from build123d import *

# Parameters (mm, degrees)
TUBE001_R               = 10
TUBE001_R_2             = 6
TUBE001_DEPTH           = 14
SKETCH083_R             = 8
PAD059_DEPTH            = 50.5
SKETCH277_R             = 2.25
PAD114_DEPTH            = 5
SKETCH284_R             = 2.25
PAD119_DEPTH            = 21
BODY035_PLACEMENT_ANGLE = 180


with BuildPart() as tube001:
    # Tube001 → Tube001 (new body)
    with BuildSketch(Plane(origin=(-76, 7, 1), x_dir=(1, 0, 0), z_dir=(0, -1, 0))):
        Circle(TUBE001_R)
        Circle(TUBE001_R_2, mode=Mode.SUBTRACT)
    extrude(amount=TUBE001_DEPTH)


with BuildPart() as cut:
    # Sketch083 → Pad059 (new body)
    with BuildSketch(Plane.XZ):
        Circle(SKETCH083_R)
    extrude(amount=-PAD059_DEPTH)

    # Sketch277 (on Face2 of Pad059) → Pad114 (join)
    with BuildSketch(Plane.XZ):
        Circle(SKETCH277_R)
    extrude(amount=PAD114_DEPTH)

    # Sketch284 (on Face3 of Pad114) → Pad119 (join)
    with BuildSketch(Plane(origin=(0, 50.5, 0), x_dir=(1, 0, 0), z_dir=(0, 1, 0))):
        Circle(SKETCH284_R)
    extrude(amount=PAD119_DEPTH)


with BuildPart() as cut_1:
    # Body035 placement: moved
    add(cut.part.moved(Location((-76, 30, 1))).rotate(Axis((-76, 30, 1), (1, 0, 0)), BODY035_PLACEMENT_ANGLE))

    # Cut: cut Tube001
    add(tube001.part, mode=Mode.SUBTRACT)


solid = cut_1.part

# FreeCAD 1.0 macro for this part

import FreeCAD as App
import Part
import Sketcher
Q = App.Units.Quantity

doc = App.newDocument("Part")
body = doc.addObject("PartDesign::Body", "Body")

sketch1 = doc.addObject("Sketcher::SketchObject", "Sketch")
body.addObject(sketch1)
sketch1.AttachmentSupport = (doc.XZ_Plane, [""])
sketch1.MapMode = "FlatFace"
sketch1.AttachmentOffset = App.Placement(App.Vector(0, 0, -7), App.Rotation())
sketch1.addGeometry(Part.Circle(App.Vector(-76, 1, 0), App.Vector(0, 0, 1), 10), False)
sketch1.addGeometry(Part.Circle(App.Vector(-76, 1, 0), App.Vector(0, 0, 1), 6), False)
sketch1.addConstraint(Sketcher.Constraint("Coincident", 1, 3, 0, 3))
sketch1.addConstraint(Sketcher.Constraint("Diameter", 0, Q("20 mm")))
sketch1.addConstraint(Sketcher.Constraint("Diameter", 1, Q("12 mm")))
sketch1.addConstraint(Sketcher.Constraint("DistanceX", 0, 3, -1, 1, Q("76 mm")))
sketch1.addConstraint(Sketcher.Constraint("DistanceY", -1, 1, 0, 3, Q("1 mm")))
pad1 = doc.addObject("PartDesign::Pad", "Pad")
body.addObject(pad1)
pad1.Profile = sketch1
pad1.Length = 14
body2 = doc.addObject("PartDesign::Body", "Body001")

sketch2 = doc.addObject("Sketcher::SketchObject", "Sketch001")
body2.addObject(sketch2)
sketch2.AttachmentSupport = (doc.getObject("XZ_Plane001"), [""])
sketch2.MapMode = "FlatFace"
sketch2.addGeometry(Part.Circle(App.Vector(0, 0, 0), App.Vector(0, 0, 1), 8), False)
sketch2.addConstraint(Sketcher.Constraint("Coincident", 0, 3, -1, 1))
sketch2.addConstraint(Sketcher.Constraint("Diameter", 0, Q("16 mm")))
pad2 = doc.addObject("PartDesign::Pad", "Pad001")
body2.addObject(pad2)
pad2.Profile = sketch2
pad2.Length = 50.5
pad2.Reversed = True

sketch3 = doc.addObject("Sketcher::SketchObject", "Sketch002")
body2.addObject(sketch3)
sketch3.AttachmentSupport = (doc.getObject("XZ_Plane001"), [""])
sketch3.MapMode = "FlatFace"
sketch3.addGeometry(Part.Circle(App.Vector(0, 0, 0), App.Vector(0, 0, 1), 2.2), False)
sketch3.addConstraint(Sketcher.Constraint("Coincident", 0, 3, -1, 1))
sketch3.addConstraint(Sketcher.Constraint("Diameter", 0, Q("4.5 mm")))
pad3 = doc.addObject("PartDesign::Pad", "Pad002")
body2.addObject(pad3)
pad3.Profile = sketch3
pad3.Length = 5

sketch4 = doc.addObject("Sketcher::SketchObject", "Sketch003")
body2.addObject(sketch4)
sketch4.AttachmentSupport = (doc.getObject("XZ_Plane001"), [""])
sketch4.MapMode = "FlatFace"
sketch4.AttachmentOffset = App.Placement(App.Vector(0, 0, -50.5), App.Rotation())
sketch4.addGeometry(Part.Circle(App.Vector(0, 0, 0), App.Vector(0, 0, 1), 2.2), False)
sketch4.addConstraint(Sketcher.Constraint("Coincident", 0, 3, -1, 1))
sketch4.addConstraint(Sketcher.Constraint("Diameter", 0, Q("4.5 mm")))
pad4 = doc.addObject("PartDesign::Pad", "Pad003")
body2.addObject(pad4)
pad4.Profile = sketch4
pad4.Length = 21
pad4.Reversed = True
body3 = doc.addObject("PartDesign::Body", "Body002")
doc.recompute()

body2.Placement = App.Placement(App.Vector(-76, 30, 1), App.Rotation(App.Vector(1, 0, 0), 180))
boolean = doc.addObject("PartDesign::Boolean", "Boolean")
body3.addObject(boolean)
boolean.Type = "Fuse"
boolean.addObjects([body2])
doc.recompute()

boolean2 = doc.addObject("PartDesign::Boolean", "Boolean001")
body3.addObject(boolean2)
boolean2.Type = "Cut"
boolean2.addObjects([body])

doc.recompute()
